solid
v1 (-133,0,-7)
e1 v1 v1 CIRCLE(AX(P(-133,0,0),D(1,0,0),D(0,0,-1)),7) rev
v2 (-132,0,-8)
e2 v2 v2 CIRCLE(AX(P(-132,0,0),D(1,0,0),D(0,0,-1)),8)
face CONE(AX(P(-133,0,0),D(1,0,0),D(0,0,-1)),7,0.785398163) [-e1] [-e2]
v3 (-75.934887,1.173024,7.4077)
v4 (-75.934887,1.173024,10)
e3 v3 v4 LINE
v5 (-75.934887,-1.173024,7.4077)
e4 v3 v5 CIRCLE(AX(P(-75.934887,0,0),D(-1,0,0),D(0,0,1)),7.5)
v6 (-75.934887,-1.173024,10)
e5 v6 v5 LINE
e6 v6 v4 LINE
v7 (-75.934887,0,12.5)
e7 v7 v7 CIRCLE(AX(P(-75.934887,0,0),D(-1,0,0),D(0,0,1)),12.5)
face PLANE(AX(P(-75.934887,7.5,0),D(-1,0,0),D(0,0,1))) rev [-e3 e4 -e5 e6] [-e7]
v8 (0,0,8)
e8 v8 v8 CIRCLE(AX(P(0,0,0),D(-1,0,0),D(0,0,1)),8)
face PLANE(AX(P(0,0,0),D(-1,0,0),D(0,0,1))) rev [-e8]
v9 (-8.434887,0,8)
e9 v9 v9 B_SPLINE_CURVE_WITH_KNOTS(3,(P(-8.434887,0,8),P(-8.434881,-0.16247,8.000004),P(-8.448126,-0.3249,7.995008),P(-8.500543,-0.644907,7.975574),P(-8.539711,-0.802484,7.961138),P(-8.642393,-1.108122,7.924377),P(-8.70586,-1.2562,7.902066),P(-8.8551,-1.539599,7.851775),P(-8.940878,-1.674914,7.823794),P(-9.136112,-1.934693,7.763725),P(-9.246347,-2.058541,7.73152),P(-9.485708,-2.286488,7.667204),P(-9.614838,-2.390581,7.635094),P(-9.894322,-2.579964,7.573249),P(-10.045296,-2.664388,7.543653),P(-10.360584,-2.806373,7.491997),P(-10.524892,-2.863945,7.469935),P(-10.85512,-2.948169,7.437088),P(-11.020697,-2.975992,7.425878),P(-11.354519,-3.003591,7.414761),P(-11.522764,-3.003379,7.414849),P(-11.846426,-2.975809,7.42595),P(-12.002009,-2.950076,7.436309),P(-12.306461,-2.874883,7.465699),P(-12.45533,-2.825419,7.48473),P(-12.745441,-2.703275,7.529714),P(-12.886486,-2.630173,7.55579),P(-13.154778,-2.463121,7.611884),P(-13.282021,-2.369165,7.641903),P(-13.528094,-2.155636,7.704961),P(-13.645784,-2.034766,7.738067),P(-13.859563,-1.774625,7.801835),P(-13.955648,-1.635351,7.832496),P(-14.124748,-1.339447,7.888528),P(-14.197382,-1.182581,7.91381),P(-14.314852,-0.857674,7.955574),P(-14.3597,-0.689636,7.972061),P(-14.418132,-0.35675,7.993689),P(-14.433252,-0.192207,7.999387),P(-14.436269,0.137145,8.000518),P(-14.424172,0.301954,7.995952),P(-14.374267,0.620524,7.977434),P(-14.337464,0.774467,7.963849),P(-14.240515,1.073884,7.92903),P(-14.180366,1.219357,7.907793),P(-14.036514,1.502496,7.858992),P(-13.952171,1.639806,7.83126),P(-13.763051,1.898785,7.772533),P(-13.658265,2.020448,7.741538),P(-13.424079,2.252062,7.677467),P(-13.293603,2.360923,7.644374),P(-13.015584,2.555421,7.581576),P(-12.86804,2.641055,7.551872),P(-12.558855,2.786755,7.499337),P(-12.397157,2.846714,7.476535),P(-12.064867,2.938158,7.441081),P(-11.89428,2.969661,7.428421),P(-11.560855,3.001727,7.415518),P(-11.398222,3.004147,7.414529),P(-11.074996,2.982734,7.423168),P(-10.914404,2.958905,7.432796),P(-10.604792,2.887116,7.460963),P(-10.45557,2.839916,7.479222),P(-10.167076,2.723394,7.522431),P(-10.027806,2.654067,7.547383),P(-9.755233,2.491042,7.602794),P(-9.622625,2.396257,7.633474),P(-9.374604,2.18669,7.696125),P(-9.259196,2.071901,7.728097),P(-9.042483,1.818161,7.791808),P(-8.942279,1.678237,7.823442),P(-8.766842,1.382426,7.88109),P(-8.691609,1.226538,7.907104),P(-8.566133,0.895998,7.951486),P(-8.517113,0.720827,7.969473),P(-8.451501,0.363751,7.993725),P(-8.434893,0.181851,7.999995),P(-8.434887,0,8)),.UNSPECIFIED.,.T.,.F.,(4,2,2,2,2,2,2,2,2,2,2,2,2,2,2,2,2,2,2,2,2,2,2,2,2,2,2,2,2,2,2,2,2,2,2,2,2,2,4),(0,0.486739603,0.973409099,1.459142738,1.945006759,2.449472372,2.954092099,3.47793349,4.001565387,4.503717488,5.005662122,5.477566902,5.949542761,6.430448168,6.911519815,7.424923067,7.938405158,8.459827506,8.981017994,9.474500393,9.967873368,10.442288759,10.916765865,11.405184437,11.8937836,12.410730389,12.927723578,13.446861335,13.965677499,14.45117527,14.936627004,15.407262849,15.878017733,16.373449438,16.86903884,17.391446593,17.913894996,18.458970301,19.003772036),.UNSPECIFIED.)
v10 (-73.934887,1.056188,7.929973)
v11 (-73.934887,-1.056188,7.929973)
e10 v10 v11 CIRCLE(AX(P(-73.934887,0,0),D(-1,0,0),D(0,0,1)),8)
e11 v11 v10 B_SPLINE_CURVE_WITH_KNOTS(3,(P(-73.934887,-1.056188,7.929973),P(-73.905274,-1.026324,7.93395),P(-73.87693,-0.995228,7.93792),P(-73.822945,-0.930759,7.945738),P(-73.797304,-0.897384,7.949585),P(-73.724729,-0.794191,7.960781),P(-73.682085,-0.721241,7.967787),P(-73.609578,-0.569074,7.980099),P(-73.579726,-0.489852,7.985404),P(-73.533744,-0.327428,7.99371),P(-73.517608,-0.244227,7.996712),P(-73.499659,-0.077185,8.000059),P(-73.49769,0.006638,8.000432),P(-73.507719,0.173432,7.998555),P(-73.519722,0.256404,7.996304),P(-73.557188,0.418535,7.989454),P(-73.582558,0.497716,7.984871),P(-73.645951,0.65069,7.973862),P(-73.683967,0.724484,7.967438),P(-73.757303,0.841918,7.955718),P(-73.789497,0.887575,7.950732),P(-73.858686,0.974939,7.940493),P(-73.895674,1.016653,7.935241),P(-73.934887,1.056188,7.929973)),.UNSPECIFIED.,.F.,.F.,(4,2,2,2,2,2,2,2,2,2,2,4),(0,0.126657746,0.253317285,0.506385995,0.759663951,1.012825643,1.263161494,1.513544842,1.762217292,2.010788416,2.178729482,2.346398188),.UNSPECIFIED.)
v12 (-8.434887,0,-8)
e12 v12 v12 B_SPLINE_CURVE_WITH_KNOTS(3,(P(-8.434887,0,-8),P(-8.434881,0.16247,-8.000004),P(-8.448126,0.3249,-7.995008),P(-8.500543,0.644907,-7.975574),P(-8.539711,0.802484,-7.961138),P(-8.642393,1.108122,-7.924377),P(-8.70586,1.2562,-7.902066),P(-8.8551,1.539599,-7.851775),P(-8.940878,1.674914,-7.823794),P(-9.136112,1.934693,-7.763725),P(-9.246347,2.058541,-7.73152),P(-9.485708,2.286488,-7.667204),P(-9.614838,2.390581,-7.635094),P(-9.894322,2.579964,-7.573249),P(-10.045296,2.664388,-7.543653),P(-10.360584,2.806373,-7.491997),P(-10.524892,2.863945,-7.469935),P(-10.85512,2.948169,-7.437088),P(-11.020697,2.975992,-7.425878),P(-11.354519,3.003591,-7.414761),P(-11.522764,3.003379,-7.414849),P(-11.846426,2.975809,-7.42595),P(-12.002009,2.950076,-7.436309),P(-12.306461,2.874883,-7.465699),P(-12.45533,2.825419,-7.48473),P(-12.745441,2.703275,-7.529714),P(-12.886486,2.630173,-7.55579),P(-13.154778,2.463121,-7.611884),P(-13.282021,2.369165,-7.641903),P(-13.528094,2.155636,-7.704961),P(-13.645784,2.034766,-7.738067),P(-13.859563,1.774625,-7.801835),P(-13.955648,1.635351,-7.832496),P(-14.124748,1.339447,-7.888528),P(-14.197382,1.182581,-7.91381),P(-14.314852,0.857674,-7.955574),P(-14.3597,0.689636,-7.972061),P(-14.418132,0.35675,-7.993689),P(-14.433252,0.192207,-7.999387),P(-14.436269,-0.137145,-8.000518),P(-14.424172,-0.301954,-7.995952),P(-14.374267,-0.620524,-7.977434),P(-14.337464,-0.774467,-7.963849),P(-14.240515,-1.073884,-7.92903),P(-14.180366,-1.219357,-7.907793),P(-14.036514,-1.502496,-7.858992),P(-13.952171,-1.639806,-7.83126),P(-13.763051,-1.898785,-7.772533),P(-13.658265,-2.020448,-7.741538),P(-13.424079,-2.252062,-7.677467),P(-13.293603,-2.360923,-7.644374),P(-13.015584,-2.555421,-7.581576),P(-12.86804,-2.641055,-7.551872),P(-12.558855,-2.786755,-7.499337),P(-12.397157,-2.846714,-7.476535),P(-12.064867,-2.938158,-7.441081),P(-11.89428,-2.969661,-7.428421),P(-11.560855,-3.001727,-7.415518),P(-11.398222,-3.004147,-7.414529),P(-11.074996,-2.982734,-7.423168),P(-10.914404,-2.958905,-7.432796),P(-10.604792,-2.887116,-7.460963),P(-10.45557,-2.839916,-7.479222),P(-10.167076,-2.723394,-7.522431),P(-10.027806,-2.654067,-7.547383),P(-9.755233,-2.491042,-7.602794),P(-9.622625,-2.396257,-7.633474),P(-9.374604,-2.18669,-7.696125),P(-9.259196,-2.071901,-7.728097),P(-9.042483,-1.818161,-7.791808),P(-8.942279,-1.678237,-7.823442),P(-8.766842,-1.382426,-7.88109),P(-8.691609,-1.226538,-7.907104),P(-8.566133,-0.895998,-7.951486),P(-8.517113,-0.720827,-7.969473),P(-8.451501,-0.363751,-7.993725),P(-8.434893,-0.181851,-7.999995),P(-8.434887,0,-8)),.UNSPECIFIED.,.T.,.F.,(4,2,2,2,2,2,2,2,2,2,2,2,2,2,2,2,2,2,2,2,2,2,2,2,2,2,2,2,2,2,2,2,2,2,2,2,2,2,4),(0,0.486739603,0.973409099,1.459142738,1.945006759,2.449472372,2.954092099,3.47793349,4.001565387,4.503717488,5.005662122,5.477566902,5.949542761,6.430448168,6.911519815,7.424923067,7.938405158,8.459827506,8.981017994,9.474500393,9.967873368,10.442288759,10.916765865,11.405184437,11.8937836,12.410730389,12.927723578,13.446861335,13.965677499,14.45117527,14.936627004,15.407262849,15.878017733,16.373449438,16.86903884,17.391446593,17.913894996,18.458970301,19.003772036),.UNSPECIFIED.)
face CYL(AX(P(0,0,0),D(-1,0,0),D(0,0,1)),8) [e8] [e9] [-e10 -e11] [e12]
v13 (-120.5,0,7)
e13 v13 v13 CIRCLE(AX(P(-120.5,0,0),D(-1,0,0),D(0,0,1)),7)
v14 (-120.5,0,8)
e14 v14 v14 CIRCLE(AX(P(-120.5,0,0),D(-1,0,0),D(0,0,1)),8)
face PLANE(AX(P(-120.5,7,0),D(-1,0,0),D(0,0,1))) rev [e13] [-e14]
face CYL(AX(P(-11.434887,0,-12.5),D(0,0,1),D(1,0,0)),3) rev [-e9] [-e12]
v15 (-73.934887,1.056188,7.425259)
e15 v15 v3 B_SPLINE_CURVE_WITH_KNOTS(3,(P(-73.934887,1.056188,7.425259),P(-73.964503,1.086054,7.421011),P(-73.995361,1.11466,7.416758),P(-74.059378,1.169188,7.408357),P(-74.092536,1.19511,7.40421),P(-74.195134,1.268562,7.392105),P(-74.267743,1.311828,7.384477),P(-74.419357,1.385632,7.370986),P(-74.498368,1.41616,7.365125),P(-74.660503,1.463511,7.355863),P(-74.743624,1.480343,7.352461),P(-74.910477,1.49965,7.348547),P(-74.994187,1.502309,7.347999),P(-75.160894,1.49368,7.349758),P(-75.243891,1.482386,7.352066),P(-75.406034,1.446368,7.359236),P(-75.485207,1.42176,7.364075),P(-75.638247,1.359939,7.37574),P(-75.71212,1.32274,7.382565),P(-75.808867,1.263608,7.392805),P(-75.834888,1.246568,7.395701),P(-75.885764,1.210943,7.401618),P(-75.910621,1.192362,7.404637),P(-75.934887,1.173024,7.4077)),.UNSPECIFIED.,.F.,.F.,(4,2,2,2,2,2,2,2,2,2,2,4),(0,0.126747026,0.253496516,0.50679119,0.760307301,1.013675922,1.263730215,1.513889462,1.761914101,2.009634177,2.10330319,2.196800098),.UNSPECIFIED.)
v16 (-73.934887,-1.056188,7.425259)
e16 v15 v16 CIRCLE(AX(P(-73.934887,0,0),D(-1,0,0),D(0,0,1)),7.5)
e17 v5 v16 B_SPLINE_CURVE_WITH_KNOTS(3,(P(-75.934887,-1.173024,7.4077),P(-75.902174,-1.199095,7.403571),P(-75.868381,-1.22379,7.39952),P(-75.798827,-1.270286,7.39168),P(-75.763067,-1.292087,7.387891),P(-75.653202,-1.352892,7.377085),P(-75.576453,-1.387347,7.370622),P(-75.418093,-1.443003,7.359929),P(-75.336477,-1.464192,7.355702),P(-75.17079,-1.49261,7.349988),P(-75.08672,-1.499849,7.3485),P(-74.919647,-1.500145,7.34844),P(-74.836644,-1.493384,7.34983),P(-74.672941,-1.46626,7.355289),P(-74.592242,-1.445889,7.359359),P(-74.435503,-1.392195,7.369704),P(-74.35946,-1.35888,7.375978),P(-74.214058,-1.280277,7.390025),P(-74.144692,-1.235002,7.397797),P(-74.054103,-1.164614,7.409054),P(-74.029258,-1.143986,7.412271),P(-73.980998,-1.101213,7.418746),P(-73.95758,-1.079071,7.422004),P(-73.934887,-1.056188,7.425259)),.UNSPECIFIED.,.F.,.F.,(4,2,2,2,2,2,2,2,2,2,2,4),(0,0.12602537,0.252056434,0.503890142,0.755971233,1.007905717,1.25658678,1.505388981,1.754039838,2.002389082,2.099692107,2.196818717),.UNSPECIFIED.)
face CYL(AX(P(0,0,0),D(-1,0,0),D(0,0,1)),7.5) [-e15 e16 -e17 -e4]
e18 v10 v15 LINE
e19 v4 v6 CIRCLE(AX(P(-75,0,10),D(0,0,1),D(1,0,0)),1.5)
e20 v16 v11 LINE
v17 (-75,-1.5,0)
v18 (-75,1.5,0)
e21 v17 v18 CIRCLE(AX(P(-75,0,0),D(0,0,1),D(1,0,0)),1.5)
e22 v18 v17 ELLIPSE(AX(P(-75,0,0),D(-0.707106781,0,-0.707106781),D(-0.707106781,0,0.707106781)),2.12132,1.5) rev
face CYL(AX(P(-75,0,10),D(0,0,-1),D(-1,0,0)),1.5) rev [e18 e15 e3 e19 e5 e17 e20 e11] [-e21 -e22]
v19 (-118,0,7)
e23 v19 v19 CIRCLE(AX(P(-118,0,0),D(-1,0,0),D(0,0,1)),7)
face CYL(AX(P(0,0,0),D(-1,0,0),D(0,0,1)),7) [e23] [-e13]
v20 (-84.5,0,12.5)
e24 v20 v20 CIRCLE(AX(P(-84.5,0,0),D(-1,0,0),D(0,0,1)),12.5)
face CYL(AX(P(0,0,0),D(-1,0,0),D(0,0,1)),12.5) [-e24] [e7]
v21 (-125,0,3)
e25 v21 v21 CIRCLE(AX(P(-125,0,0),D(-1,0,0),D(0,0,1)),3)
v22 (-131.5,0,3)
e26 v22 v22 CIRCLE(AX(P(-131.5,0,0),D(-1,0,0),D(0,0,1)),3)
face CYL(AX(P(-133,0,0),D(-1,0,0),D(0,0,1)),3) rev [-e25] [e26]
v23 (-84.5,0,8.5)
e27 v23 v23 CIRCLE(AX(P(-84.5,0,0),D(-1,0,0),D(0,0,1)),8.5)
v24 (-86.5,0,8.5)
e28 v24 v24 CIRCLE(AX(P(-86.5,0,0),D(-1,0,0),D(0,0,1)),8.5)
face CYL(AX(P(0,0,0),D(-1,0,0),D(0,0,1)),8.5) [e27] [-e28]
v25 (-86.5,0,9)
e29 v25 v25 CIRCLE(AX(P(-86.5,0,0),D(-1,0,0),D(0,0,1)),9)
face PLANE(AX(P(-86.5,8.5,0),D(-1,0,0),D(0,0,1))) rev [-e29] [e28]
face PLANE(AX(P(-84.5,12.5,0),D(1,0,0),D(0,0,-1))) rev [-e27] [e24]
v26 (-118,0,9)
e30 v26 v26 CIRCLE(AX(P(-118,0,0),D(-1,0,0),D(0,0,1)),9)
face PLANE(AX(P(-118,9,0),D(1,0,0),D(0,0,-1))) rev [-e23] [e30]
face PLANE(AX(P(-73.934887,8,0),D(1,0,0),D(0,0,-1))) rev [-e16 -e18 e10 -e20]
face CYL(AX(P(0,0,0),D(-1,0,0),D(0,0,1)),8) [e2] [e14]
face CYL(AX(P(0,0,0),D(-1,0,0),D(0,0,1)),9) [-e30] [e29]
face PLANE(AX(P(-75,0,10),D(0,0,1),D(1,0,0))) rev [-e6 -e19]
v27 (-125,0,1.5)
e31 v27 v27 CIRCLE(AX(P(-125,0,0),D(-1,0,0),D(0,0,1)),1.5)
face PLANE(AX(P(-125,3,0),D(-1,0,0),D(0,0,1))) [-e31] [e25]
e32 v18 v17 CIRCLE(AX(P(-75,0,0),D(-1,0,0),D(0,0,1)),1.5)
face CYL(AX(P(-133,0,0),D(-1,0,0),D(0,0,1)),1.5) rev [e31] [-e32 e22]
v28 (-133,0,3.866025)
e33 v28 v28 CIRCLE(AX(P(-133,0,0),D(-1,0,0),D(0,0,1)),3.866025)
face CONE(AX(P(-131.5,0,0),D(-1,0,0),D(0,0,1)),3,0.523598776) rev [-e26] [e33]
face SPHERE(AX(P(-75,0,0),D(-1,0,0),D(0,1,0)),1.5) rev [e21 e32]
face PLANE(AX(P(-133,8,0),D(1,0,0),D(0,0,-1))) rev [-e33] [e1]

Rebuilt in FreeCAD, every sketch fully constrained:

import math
import FreeCAD as App
import Part
import Sketcher
from FreeCAD import Vector
Q = App.Units.Quantity


def edges_at(feature, points):
    """Names of the edges that pass closest to the given points."""
    edges = feature.Shape.Edges
    near = lambda p: min(range(len(edges)), key=lambda i: edges[i].distToShape(Part.Vertex(*p))[0])
    return sorted({f"Edge{near(p) + 1}" for p in points})

doc = App.newDocument("Part")
body = doc.addObject("PartDesign::Body", "Body")

sketch1 = body.newObject("Sketcher::SketchObject", "Sketch")
sketch1.AttachmentSupport = (doc.getObject("XY_Plane"), [""])
sketch1.MapMode = "FlatFace"
sketch1.addGeometry(Part.LineSegment(Vector(0, 0, 0), Vector(0, 8, 0)), False)
sketch1.addGeometry(Part.LineSegment(Vector(0, 8, 0), Vector(-73.9, 8, 0)), False)
sketch1.addGeometry(Part.LineSegment(Vector(-73.9, 8, 0), Vector(-73.9, 7.5, 0)), False)
sketch1.addGeometry(Part.LineSegment(Vector(-73.9, 7.5, 0), Vector(-75.9, 7.5, 0)), False)
sketch1.addGeometry(Part.LineSegment(Vector(-75.9, 7.5, 0), Vector(-75.9, 12.5, 0)), False)
sketch1.addGeometry(Part.LineSegment(Vector(-75.9, 12.5, 0), Vector(-84.5, 12.5, 0)), False)
sketch1.addGeometry(Part.LineSegment(Vector(-84.5, 12.5, 0), Vector(-84.5, 8.5, 0)), False)
sketch1.addGeometry(Part.LineSegment(Vector(-84.5, 8.5, 0), Vector(-86.5, 8.5, 0)), False)
sketch1.addGeometry(Part.LineSegment(Vector(-86.5, 8.5, 0), Vector(-86.5, 9, 0)), False)
sketch1.addGeometry(Part.LineSegment(Vector(-86.5, 9, 0), Vector(-118, 9, 0)), False)
sketch1.addGeometry(Part.LineSegment(Vector(-118, 9, 0), Vector(-118, 7, 0)), False)
sketch1.addGeometry(Part.LineSegment(Vector(-118, 7, 0), Vector(-120.5, 7, 0)), False)
sketch1.addGeometry(Part.LineSegment(Vector(-120.5, 7, 0), Vector(-120.5, 8, 0)), False)
sketch1.addGeometry(Part.LineSegment(Vector(-120.5, 8, 0), Vector(-133, 8, 0)), False)
sketch1.addGeometry(Part.LineSegment(Vector(-133, 8, 0), Vector(-133, 0, 0)), False)
sketch1.addGeometry(Part.LineSegment(Vector(-133, 0, 0), Vector(0, 0, 0)), False)
sketch1.addConstraint(Sketcher.Constraint("Coincident", 0, 2, 1, 1))
sketch1.addConstraint(Sketcher.Constraint("Coincident", 1, 2, 2, 1))
sketch1.addConstraint(Sketcher.Constraint("Coincident", 2, 2, 3, 1))
sketch1.addConstraint(Sketcher.Constraint("Coincident", 3, 2, 4, 1))
sketch1.addConstraint(Sketcher.Constraint("Coincident", 4, 2, 5, 1))
sketch1.addConstraint(Sketcher.Constraint("Coincident", 5, 2, 6, 1))
sketch1.addConstraint(Sketcher.Constraint("Coincident", 6, 2, 7, 1))
sketch1.addConstraint(Sketcher.Constraint("Coincident", 7, 2, 8, 1))
sketch1.addConstraint(Sketcher.Constraint("Coincident", 8, 2, 9, 1))
sketch1.addConstraint(Sketcher.Constraint("Coincident", 9, 2, 10, 1))
sketch1.addConstraint(Sketcher.Constraint("Coincident", 10, 2, 11, 1))
sketch1.addConstraint(Sketcher.Constraint("Coincident", 11, 2, 12, 1))
sketch1.addConstraint(Sketcher.Constraint("Coincident", 12, 2, 13, 1))
sketch1.addConstraint(Sketcher.Constraint("Coincident", 13, 2, 14, 1))
sketch1.addConstraint(Sketcher.Constraint("Coincident", 14, 2, 15, 1))
sketch1.addConstraint(Sketcher.Constraint("Coincident", 15, 2, 0, 1))
sketch1.addConstraint(Sketcher.Constraint("Vertical", 0))
sketch1.addConstraint(Sketcher.Constraint("Horizontal", 1))
sketch1.addConstraint(Sketcher.Constraint("Vertical", 2))
sketch1.addConstraint(Sketcher.Constraint("Horizontal", 3))
sketch1.addConstraint(Sketcher.Constraint("Vertical", 4))
sketch1.addConstraint(Sketcher.Constraint("Horizontal", 5))
sketch1.addConstraint(Sketcher.Constraint("Vertical", 6))
sketch1.addConstraint(Sketcher.Constraint("Horizontal", 7))
sketch1.addConstraint(Sketcher.Constraint("Vertical", 8))
sketch1.addConstraint(Sketcher.Constraint("Horizontal", 9))
sketch1.addConstraint(Sketcher.Constraint("Vertical", 10))
sketch1.addConstraint(Sketcher.Constraint("Horizontal", 11))
sketch1.addConstraint(Sketcher.Constraint("Vertical", 12))
sketch1.addConstraint(Sketcher.Constraint("Horizontal", 13))
sketch1.addConstraint(Sketcher.Constraint("Vertical", 14))
sketch1.addConstraint(Sketcher.Constraint("Horizontal", 15))
sketch1.addConstraint(Sketcher.Constraint("Coincident", 15, 2, -1, 1))
sketch1.addConstraint(Sketcher.Constraint("Horizontal", 1, 2, 12, 2))
sketch1.addConstraint(Sketcher.Constraint("Equal", 3, 7))
sketch1.addConstraint(Sketcher.Constraint("Equal", 2, 8))
sketch1.addConstraint(Sketcher.Constraint("Equal", 7, 10))
sketch1.addConstraint(Sketcher.Constraint("DistanceX", 3, 2, 3, 1, Q("2 mm")))
sketch1.addConstraint(Sketcher.Constraint("DistanceX", 15, 1, 15, 2, Q("133 mm")))
sketch1.addConstraint(Sketcher.Constraint("DistanceY", 0, 1, 0, 2, Q("8 mm")))
sketch1.addConstraint(Sketcher.Constraint("DistanceY", 4, 1, 4, 2, Q("5 mm")))
sketch1.addConstraint(Sketcher.Constraint("DistanceY", 6, 2, 6, 1, Q("4 mm")))
sketch1.addConstraint(Sketcher.Constraint("DistanceX", 9, 2, 9, 1, Q("31.5 mm")))
sketch1.addConstraint(Sketcher.Constraint("DistanceX", 11, 2, 11, 1, Q("2.5 mm")))
sketch1.addConstraint(Sketcher.Constraint("DistanceX", 13, 2, 13, 1, Q("12.5 mm")))
sketch1.addConstraint(Sketcher.Constraint("DistanceY", 2, 2, 2, 1, Q("0.5 mm")))
sketch1.addConstraint(Sketcher.Constraint("DistanceX", 1, 2, 1, 1, Q("73.934887 mm")))
revolution = body.newObject("PartDesign::Revolution", "Revolution")
revolution.Profile = sketch1
revolution.ReferenceAxis = (sketch1, ["H_Axis"])
revolution.Angle = 360

sketch2 = body.newObject("Sketcher::SketchObject", "Sketch001")
sketch2.AttachmentSupport = (doc.getObject("XY_Plane"), [""])
sketch2.MapMode = "FlatFace"
sketch2.addGeometry(Part.LineSegment(Vector(-131.5, 3, 0), Vector(-133, 3.9, 0)), False)
sketch2.addGeometry(Part.LineSegment(Vector(-133, 3.9, 0), Vector(-133, 0, 0)), False)
sketch2.addGeometry(Part.LineSegment(Vector(-133, 0, 0), Vector(-73.5, 0, 0)), False)
sketch2.addGeometry(Part.ArcOfCircle(Part.Circle(Vector(-75, 0, 0), Vector(0, 0, 1), 1.5), math.radians(0), math.radians(90)), False)
sketch2.addGeometry(Part.LineSegment(Vector(-75, 1.5, 0), Vector(-125, 1.5, 0)), False)
sketch2.addGeometry(Part.LineSegment(Vector(-125, 1.5, 0), Vector(-125, 3, 0)), False)
sketch2.addGeometry(Part.LineSegment(Vector(-125, 3, 0), Vector(-131.5, 3, 0)), False)
sketch2.addConstraint(Sketcher.Constraint("Coincident", 0, 2, 1, 1))
sketch2.addConstraint(Sketcher.Constraint("Coincident", 1, 2, 2, 1))
sketch2.addConstraint(Sketcher.Constraint("Coincident", 2, 2, 3, 1))
sketch2.addConstraint(Sketcher.Constraint("Tangent", 3, 2, 4, 1))
sketch2.addConstraint(Sketcher.Constraint("Coincident", 4, 2, 5, 1))
sketch2.addConstraint(Sketcher.Constraint("Coincident", 5, 2, 6, 1))
sketch2.addConstraint(Sketcher.Constraint("Coincident", 6, 2, 0, 1))
sketch2.addConstraint(Sketcher.Constraint("Vertical", 1))
sketch2.addConstraint(Sketcher.Constraint("Horizontal", 2))
sketch2.addConstraint(Sketcher.Constraint("Horizontal", 4))
sketch2.addConstraint(Sketcher.Constraint("Vertical", 5))
sketch2.addConstraint(Sketcher.Constraint("Horizontal", 6))
sketch2.addConstraint(Sketcher.Constraint("PointOnObject", 3, 3, -1))
sketch2.addConstraint(Sketcher.Constraint("PointOnObject", 1, 2, -1))
sketch2.addConstraint(Sketcher.Constraint("Radius", 3, Q("1.5 mm")))
sketch2.addConstraint(Sketcher.Constraint("DistanceX", 4, 2, 4, 1, Q("50 mm")))
sketch2.addConstraint(Sketcher.Constraint("Angle", 0, Q("150 deg")))
sketch2.addConstraint(Sketcher.Constraint("DistanceX", 2, 1, 2, 2, Q("59.5 mm")))
sketch2.addConstraint(Sketcher.Constraint("DistanceX", 6, 2, 6, 1, Q("6.5 mm")))
sketch2.addConstraint(Sketcher.Constraint("DistanceY", 5, 1, 5, 2, Q("1.5 mm")))
sketch2.addConstraint(Sketcher.Constraint("DistanceX", 3, 3, -1, 1, Q("75 mm")))
groove = body.newObject("PartDesign::Groove", "Groove")
groove.Profile = sketch2
groove.ReferenceAxis = (sketch2, ["H_Axis"])
groove.Angle = 360

sketch3 = body.newObject("Sketcher::SketchObject", "Sketch002")
sketch3.AttachmentSupport = (doc.getObject("XY_Plane"), [""])
sketch3.MapMode = "FlatFace"
sketch3.addGeometry(Part.Circle(Vector(-11.4, 0, 0), Vector(0, 0, 1), 3), False)
sketch3.addConstraint(Sketcher.Constraint("PointOnObject", 0, 3, -1))
sketch3.addConstraint(Sketcher.Constraint("Diameter", 0, Q("6 mm")))
sketch3.addConstraint(Sketcher.Constraint("DistanceX", 0, 3, -1, 1, Q("11.434887 mm")))
pocket1 = body.newObject("PartDesign::Pocket", "Pocket")
pocket1.Profile = sketch3
pocket1.Type = "ThroughAll"
pocket1.Midplane = True

sketch4 = body.newObject("Sketcher::SketchObject", "Sketch003")
sketch4.AttachmentSupport = (doc.getObject("XY_Plane"), [""])
sketch4.MapMode = "FlatFace"
sketch4.addGeometry(Part.Circle(Vector(-75, 0, 0), Vector(0, 0, 1), 1.5), False)
sketch4.addConstraint(Sketcher.Constraint("PointOnObject", 0, 3, -1))
sketch4.addConstraint(Sketcher.Constraint("Diameter", 0, Q("3 mm")))
sketch4.addConstraint(Sketcher.Constraint("DistanceX", 0, 3, -1, 1, Q("75 mm")))
pocket2 = body.newObject("PartDesign::Pocket", "Pocket001")
pocket2.Profile = sketch4
pocket2.Length = 10
pocket2.Reversed = True
doc.recompute()

chamfer = body.newObject("PartDesign::Chamfer", "Chamfer")
chamfer.Base = (pocket2, edges_at(pocket2, [(-133, 0, -8)]))
chamfer.Size = 1

doc.recompute()
